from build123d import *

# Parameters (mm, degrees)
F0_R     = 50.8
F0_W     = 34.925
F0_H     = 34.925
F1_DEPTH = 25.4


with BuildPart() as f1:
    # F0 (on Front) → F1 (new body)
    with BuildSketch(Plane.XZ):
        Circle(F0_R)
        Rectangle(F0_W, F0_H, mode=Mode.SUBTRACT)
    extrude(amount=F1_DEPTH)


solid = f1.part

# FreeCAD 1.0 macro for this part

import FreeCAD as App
import Part
import Sketcher
from FreeCAD import Vector
Q = App.Units.Quantity


def add_polygon(sketch, points):
    """Adds a closed chain of lines whose ends are joined by coincident constraints."""
    first, n = sketch.GeometryCount, len(points)
    for a, b in zip(points, points[1:] + points[:1]):
        sketch.addGeometry(Part.LineSegment(App.Vector(*a, 0), App.Vector(*b, 0)), False)
    for i in range(n):
        sketch.addConstraint(Sketcher.Constraint("Coincident", first + i, 2, first + (i + 1) % n, 1))

doc = App.newDocument("Part")
body = doc.addObject("PartDesign::Body", "Body")

sketch1 = doc.addObject("Sketcher::SketchObject", "Sketch")
body.addObject(sketch1)
sketch1.AttachmentSupport = (doc.XZ_Plane, [""])
sketch1.MapMode = "FlatFace"
sketch1.addGeometry(Part.Circle(Vector(0, 0, 0), Vector(0, 0, 1), 50.8), False)
add_polygon(sketch1, [(17.4625, -17.4625), (-17.4625, -17.4625), (-17.4625, 17.4625), (17.4625, 17.4625)])
sketch1.addConstraint([
    Sketcher.Constraint("Horizontal", 1),
    Sketcher.Constraint("Vertical", 2),
    Sketcher.Constraint("Horizontal", 3),
    Sketcher.Constraint("Vertical", 4),
    Sketcher.Constraint("Coincident", 0, 3, -1, 1),
    Sketcher.Constraint("Symmetric", 1, 2, 3, 2, -1, 1),
    Sketcher.Constraint("Equal", 3, 2),
    Sketcher.Constraint("Diameter", 0, Q("4 in")),
    Sketcher.Constraint("DistanceX", 1, 2, 1, 1, Q("1.375 in")),
])
pad1 = doc.addObject("PartDesign::Pad", "Pad")
body.addObject(pad1)
pad1.Profile = sketch1
pad1.Length = Q("1 in")

doc.recompute()
